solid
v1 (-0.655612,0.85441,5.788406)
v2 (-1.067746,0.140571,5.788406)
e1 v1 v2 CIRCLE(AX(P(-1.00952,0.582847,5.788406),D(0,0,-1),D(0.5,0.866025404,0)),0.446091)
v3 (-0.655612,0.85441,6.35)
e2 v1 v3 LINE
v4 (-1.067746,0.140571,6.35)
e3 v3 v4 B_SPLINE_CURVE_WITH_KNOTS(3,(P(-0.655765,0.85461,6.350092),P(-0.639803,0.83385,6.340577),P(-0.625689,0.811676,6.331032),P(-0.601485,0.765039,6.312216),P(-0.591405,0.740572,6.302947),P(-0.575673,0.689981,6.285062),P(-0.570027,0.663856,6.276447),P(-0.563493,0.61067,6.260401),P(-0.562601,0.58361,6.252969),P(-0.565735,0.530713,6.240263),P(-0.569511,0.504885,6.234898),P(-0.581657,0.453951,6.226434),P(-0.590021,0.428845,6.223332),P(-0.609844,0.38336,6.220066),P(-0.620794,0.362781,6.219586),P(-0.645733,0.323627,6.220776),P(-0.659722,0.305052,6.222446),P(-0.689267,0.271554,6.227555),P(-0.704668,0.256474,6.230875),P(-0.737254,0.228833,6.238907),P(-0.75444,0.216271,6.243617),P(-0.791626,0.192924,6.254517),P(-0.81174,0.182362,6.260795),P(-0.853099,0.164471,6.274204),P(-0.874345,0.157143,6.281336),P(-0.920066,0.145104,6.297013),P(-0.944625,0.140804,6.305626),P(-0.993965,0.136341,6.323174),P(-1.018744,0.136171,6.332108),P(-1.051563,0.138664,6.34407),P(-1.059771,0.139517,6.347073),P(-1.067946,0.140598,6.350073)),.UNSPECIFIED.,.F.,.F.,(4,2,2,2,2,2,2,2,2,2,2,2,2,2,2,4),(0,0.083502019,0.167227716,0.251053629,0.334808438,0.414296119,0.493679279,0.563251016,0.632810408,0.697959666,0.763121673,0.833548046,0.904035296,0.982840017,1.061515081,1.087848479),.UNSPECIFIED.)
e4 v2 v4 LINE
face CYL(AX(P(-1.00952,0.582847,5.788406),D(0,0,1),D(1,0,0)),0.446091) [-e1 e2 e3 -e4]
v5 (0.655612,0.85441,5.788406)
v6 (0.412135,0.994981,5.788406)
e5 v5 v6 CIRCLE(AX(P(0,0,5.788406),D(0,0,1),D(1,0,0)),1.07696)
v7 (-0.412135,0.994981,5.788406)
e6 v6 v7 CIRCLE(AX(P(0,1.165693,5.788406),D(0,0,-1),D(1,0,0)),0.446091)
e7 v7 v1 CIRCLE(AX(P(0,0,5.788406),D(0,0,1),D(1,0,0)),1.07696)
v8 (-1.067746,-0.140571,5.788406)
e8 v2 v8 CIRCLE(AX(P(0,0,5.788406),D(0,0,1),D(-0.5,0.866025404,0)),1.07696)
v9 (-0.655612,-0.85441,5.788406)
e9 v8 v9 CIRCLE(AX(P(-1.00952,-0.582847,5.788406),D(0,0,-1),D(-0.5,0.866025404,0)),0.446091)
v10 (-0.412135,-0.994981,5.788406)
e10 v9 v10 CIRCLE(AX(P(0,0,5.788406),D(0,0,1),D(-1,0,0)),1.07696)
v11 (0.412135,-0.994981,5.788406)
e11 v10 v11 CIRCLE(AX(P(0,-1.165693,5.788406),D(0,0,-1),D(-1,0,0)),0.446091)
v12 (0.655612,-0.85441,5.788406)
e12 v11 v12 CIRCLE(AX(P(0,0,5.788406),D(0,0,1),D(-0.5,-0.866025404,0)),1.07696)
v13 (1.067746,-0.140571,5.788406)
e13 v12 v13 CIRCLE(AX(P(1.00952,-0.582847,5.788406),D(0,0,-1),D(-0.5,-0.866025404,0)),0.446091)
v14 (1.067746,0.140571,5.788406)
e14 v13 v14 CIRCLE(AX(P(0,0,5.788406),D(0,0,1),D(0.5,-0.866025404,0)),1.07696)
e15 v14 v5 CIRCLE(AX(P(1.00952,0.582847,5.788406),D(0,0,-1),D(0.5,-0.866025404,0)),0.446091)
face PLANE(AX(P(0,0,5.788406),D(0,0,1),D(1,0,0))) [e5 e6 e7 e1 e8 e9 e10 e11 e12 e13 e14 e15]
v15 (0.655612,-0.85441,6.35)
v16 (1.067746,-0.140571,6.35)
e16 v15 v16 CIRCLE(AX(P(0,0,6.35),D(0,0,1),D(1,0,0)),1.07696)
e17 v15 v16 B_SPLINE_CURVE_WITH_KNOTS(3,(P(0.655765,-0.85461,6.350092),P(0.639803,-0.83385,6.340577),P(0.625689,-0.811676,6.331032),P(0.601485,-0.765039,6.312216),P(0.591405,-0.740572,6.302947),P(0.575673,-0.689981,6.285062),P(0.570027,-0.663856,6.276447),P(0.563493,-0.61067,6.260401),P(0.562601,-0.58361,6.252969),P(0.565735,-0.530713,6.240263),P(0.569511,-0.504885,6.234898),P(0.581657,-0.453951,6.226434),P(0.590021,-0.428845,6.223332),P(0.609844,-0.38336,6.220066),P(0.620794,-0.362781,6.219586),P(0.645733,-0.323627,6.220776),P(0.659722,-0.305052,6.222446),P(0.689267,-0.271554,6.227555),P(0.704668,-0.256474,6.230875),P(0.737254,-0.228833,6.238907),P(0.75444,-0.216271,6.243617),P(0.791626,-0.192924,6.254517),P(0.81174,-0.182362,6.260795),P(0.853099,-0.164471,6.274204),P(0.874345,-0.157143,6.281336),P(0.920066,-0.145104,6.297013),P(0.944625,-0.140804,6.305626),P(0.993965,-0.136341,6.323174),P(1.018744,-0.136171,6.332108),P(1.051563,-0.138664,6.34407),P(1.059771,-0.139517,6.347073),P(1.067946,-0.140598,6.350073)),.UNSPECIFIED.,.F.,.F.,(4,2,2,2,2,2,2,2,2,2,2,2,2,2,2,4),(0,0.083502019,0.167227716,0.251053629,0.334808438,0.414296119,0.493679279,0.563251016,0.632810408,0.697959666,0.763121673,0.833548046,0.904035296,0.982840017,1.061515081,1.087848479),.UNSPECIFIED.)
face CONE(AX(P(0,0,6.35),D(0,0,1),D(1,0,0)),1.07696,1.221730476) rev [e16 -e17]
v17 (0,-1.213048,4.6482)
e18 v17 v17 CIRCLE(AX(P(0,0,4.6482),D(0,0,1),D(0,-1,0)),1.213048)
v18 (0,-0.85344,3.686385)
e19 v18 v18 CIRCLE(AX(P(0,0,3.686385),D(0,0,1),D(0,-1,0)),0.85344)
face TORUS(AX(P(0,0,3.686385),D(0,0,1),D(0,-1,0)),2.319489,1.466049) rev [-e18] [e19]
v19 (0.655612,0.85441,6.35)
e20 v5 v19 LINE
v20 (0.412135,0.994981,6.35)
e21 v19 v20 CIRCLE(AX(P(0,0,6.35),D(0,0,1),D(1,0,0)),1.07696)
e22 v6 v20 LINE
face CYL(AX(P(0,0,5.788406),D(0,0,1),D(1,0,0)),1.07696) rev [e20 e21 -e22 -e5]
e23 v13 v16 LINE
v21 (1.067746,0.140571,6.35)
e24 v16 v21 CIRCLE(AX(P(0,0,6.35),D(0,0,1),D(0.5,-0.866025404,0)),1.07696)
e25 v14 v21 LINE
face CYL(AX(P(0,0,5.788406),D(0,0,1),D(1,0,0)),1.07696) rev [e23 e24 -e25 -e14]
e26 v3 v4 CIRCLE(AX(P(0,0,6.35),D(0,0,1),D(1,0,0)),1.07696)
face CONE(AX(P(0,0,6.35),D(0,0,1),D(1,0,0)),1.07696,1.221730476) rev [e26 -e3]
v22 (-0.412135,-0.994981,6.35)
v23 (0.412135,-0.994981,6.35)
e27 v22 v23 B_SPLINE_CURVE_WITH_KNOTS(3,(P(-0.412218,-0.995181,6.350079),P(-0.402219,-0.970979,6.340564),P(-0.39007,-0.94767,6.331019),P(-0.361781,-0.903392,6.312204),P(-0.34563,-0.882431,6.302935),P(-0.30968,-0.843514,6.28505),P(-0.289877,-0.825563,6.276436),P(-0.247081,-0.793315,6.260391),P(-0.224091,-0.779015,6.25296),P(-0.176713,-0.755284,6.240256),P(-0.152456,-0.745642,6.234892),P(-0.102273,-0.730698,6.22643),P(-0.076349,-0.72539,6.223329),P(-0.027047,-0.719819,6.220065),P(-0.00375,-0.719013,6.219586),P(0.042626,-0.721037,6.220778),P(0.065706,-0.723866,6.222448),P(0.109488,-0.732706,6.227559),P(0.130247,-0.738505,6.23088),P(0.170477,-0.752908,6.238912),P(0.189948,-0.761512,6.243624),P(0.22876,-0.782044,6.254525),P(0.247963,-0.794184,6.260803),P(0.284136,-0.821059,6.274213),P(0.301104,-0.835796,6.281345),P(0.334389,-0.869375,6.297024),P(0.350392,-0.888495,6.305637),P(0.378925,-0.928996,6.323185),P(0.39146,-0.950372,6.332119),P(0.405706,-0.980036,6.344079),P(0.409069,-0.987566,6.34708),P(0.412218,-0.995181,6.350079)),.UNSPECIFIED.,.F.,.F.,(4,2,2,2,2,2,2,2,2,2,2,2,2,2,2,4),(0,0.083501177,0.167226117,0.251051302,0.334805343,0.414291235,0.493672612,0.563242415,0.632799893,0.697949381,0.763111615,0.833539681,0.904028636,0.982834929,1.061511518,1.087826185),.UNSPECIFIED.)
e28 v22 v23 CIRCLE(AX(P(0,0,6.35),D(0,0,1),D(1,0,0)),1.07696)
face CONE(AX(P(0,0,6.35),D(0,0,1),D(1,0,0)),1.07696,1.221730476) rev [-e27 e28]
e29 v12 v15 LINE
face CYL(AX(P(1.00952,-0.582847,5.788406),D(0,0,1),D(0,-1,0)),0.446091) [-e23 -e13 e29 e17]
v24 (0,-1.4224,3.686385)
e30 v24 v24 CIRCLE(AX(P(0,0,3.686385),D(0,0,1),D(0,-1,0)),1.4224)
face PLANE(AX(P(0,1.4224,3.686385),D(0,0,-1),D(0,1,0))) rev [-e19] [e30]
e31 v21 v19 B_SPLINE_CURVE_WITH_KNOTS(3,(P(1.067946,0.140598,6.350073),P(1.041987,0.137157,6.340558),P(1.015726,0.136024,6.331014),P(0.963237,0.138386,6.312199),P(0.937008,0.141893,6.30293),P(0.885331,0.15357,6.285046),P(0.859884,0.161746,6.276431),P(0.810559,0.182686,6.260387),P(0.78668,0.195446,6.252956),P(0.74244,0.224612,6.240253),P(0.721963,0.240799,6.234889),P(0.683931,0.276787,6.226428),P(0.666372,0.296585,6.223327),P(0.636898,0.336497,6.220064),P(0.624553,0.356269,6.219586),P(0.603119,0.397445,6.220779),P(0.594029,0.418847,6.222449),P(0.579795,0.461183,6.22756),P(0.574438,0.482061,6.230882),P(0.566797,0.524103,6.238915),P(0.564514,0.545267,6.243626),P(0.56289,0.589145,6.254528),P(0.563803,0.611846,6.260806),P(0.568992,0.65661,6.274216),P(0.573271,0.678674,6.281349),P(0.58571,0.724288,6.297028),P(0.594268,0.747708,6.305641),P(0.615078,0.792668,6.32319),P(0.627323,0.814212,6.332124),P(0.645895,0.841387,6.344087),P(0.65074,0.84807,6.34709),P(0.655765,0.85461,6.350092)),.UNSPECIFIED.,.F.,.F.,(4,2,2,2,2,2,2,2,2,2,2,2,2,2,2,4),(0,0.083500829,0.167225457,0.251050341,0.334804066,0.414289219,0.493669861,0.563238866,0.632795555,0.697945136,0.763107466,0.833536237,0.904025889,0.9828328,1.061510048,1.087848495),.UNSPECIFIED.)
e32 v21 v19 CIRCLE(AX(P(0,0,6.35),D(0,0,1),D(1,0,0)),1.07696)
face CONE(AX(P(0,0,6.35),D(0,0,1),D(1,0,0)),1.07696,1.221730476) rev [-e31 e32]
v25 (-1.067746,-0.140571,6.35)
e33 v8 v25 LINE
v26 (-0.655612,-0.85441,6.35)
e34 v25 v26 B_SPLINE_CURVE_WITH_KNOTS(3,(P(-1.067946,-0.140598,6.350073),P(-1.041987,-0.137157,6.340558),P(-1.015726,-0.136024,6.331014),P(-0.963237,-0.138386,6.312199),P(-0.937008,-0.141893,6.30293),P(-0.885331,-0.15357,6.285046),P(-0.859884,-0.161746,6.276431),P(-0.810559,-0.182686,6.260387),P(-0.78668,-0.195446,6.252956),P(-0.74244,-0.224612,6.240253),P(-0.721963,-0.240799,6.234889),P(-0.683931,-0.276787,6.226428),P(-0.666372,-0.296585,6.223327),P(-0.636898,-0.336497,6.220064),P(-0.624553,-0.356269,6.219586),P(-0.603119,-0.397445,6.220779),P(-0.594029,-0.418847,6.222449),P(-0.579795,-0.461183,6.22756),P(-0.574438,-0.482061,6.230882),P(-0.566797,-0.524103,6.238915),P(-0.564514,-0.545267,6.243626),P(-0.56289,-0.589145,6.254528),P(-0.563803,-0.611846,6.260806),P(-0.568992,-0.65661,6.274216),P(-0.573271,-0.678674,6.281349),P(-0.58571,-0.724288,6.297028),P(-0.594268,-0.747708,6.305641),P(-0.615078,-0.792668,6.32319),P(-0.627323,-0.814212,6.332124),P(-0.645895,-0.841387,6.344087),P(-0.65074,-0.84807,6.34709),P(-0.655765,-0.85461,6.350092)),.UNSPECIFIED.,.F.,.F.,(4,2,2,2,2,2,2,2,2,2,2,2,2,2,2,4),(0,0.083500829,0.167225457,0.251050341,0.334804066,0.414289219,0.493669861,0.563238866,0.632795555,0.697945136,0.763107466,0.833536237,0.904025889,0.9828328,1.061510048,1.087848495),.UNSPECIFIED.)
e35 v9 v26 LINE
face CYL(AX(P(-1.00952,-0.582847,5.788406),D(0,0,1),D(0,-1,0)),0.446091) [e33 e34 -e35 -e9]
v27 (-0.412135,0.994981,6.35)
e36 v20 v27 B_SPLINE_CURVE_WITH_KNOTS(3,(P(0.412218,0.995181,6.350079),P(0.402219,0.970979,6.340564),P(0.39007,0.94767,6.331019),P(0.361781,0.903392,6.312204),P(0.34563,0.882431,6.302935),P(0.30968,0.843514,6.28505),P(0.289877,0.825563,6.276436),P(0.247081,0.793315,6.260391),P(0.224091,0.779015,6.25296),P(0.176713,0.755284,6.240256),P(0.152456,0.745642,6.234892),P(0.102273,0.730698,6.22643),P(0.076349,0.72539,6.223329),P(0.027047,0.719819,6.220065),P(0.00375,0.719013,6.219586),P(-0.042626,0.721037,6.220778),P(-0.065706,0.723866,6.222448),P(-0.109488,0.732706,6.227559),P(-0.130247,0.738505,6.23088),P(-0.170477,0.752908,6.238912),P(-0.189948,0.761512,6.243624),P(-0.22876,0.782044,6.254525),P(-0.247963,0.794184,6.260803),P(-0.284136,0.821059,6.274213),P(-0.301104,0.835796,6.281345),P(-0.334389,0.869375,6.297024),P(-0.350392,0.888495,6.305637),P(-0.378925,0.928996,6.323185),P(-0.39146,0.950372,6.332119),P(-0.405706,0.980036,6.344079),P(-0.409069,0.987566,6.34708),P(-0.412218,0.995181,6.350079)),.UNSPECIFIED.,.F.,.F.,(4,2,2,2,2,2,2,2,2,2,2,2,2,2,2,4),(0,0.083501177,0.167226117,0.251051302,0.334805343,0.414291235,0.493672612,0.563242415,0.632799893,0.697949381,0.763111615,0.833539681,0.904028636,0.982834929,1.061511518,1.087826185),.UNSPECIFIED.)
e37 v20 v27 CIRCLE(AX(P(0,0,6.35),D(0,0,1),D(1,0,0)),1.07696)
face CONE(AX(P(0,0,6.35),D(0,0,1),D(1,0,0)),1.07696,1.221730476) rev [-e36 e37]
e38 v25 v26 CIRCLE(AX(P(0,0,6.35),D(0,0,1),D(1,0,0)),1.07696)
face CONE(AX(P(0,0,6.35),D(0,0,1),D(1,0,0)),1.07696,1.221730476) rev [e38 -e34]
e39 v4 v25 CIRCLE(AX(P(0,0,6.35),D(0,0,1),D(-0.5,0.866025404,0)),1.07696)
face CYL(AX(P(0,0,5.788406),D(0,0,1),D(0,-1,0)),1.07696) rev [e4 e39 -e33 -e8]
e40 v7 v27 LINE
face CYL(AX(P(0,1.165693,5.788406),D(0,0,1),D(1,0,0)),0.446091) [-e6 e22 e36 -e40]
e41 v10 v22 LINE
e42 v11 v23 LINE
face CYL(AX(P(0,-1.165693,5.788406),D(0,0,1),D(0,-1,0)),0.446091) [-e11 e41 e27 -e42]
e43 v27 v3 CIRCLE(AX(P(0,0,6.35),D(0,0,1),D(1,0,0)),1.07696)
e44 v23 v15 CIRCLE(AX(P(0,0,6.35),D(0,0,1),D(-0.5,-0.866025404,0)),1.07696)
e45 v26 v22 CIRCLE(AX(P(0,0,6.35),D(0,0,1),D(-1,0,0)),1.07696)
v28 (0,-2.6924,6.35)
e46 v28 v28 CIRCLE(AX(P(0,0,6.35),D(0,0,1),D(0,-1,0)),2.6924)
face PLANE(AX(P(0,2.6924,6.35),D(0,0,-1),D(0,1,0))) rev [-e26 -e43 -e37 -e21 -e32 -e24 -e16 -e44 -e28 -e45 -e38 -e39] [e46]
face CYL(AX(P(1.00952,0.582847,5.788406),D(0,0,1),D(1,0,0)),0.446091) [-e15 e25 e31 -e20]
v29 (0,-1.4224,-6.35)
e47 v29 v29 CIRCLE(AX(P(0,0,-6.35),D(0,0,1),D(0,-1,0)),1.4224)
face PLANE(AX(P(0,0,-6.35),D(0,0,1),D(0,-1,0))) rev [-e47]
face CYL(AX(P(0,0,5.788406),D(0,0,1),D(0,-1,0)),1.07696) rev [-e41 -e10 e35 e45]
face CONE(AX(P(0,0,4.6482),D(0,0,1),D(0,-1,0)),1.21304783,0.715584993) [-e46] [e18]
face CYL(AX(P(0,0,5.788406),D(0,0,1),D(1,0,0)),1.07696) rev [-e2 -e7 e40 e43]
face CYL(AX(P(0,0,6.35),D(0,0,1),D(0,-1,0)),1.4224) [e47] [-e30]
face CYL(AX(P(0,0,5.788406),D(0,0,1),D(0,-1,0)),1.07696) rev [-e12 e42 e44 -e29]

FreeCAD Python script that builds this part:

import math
import FreeCAD as App
import Part
import Sketcher
Q = App.Units.Quantity


def add_polygon(sketch, points):
    """Adds a closed chain of lines whose ends are joined by coincident constraints."""
    first, n = sketch.GeometryCount, len(points)
    for a, b in zip(points, points[1:] + points[:1]):
        sketch.addGeometry(Part.LineSegment(App.Vector(*a, 0), App.Vector(*b, 0)), False)
    for i in range(n):
        sketch.addConstraint(Sketcher.Constraint("Coincident", first + i, 2, first + (i + 1) % n, 1))

doc = App.newDocument("Part")
body = doc.addObject("PartDesign::Body", "Body")

sketch1 = body.newObject("Sketcher::SketchObject", "Sketch")
sketch1.AttachmentSupport = (doc.getObject("YZ_Plane"), [""])
sketch1.MapMode = "FlatFace"
sketch1.addGeometry(Part.LineSegment(App.Vector(1.4, 3.7, 0), App.Vector(0.9, 3.7, 0)), False)
sketch1.addGeometry(Part.ArcOfCircle(Part.Circle(App.Vector(2.3, 3.7, 0), App.Vector(0, 0, 1), 1.5), math.radians(139), math.radians(180)), False)
sketch1.addGeometry(Part.LineSegment(App.Vector(1.2, 4.6, 0), App.Vector(2.7, 6.3, 0)), False)
sketch1.addGeometry(Part.LineSegment(App.Vector(2.7, 6.3, 0), App.Vector(0, 6.3, 0)), False)
sketch1.addGeometry(Part.LineSegment(App.Vector(0, 6.3, 0), App.Vector(0, -6.3, 0)), False)
sketch1.addGeometry(Part.LineSegment(App.Vector(0, -6.3, 0), App.Vector(1.4, -6.3, 0)), False)
sketch1.addGeometry(Part.LineSegment(App.Vector(1.4, -6.3, 0), App.Vector(1.4, 3.7, 0)), False)
sketch1.addConstraint(Sketcher.Constraint("Coincident", 0, 2, 1, 2))
sketch1.addConstraint(Sketcher.Constraint("Tangent", 1, 1, 2, 1))
sketch1.addConstraint(Sketcher.Constraint("Coincident", 2, 2, 3, 1))
sketch1.addConstraint(Sketcher.Constraint("Coincident", 3, 2, 4, 1))
sketch1.addConstraint(Sketcher.Constraint("Coincident", 4, 2, 5, 1))
sketch1.addConstraint(Sketcher.Constraint("Coincident", 5, 2, 6, 1))
sketch1.addConstraint(Sketcher.Constraint("Coincident", 6, 2, 0, 1))
sketch1.addConstraint(Sketcher.Constraint("Horizontal", 0))
sketch1.addConstraint(Sketcher.Constraint("Horizontal", 3))
sketch1.addConstraint(Sketcher.Constraint("Vertical", 4))
sketch1.addConstraint(Sketcher.Constraint("Horizontal", 5))
sketch1.addConstraint(Sketcher.Constraint("Vertical", 6))
sketch1.addConstraint(Sketcher.Constraint("Symmetric", 3, 2, 4, 2, -1, 1))
sketch1.addConstraint(Sketcher.Constraint("Horizontal", 1, 3, 0, 2))
sketch1.addConstraint(Sketcher.Constraint("DistanceY", 4, 2, 4, 1, Q("0.5 in")))
sketch1.addConstraint(Sketcher.Constraint("Angle", 2, Q("49 deg")))
sketch1.addConstraint(Sketcher.Constraint("DistanceX", 3, 2, 3, 1, Q("0.106 in")))
sketch1.addConstraint(Sketcher.Constraint("DistanceX", 5, 1, 5, 2, Q("0.056 in")))
sketch1.addConstraint(Sketcher.Constraint("DistanceX", 0, 2, 0, 1, Q("0.0224 in")))
sketch1.addConstraint(Sketcher.Constraint("DistanceY", -1, 1, 1, 1, Q("0.183 in")))
revolution = body.newObject("PartDesign::Revolution", "Revolution")
revolution.Profile = sketch1
revolution.ReferenceAxis = (sketch1, ["V_Axis"])
revolution.Angle = 360

sketch2 = body.newObject("Sketcher::SketchObject", "Sketch001")
sketch2.AttachmentSupport = (doc.getObject("XY_Plane"), [""])
sketch2.MapMode = "FlatFace"
sketch2.AttachmentOffset = App.Placement(App.Vector(0, 0, 0.25 * 25.4), App.Rotation())
sketch2.addGeometry(Part.LineSegment(App.Vector(-0.54, 0.93, 0), App.Vector(0, 0, 0)), False)
sketch2.addGeometry(Part.LineSegment(App.Vector(0, 0, 0), App.Vector(0.54, 0.93, 0)), False)
sketch2.addGeometry(Part.ArcOfCircle(Part.Circle(App.Vector(0, 0, 0), App.Vector(0, 0, 1), 1.08), math.radians(60), math.radians(67.5)), False)
sketch2.addGeometry(Part.ArcOfCircle(Part.Circle(App.Vector(0, 1.17, 0), App.Vector(0, 0, 1), 0.45), math.radians(-157), math.radians(-23)), False)
sketch2.addGeometry(Part.ArcOfCircle(Part.Circle(App.Vector(0, 0, 0), App.Vector(0, 0, 1), 1.08), math.radians(112.5), math.radians(120)), False)
sketch2.addConstraint(Sketcher.Constraint("Coincident", 0, 2, 1, 1))
sketch2.addConstraint(Sketcher.Constraint("Coincident", 1, 2, 2, 1))
sketch2.addConstraint(Sketcher.Constraint("Coincident", 2, 2, 3, 2))
sketch2.addConstraint(Sketcher.Constraint("Coincident", 3, 1, 4, 1))
sketch2.addConstraint(Sketcher.Constraint("Coincident", 4, 2, 0, 1))
sketch2.addConstraint(Sketcher.Constraint("Coincident", 2, 3, -1, 1))
sketch2.addConstraint(Sketcher.Constraint("Coincident", 4, 3, -1, 1))
sketch2.addConstraint(Sketcher.Constraint("Coincident", 0, 2, -1, 1))
sketch2.addConstraint(Sketcher.Constraint("Equal", 2, 4))
sketch2.addConstraint(Sketcher.Constraint("PointOnObject", 3, 3, -2))
sketch2.addConstraint(Sketcher.Constraint("Horizontal", 1, 2, 4, 2))
sketch2.addConstraint(Sketcher.Constraint("Angle", 0, Q("-60 deg")))
sketch2.addConstraint(Sketcher.Constraint("Radius", 2, Q("0.0424 in")))
sketch2.addConstraint(Sketcher.Constraint("Radius", 3, 0.446091))
sketch2.addConstraint(Sketcher.Constraint("DistanceY", -1, 1, 2, 2, 0.994981))
pocket1 = body.newObject("PartDesign::Pocket", "Pocket")
pocket1.Profile = sketch2
pocket1.Length = 0.561594
doc.recompute()

polarpattern = body.newObject("PartDesign::PolarPattern", "PolarPattern")
polarpattern.Originals = [pocket1]
polarpattern.Axis = (doc.getObject("Z_Axis"), [""])
polarpattern.Angle = 360
polarpattern.Occurrences = 6
body.Tip = polarpattern

sketch3 = body.newObject("Sketcher::SketchObject", "Sketch002")
sketch3.AttachmentSupport = (doc.getObject("YZ_Plane"), [""])
sketch3.MapMode = "FlatFace"
add_polygon(sketch3, [(0, 6.35), (-1.08, 6.35), (0, 5.96)])
sketch3.addConstraint(Sketcher.Constraint("Horizontal", 0))
sketch3.addConstraint(Sketcher.Constraint("Vertical", 2))
sketch3.addConstraint(Sketcher.Constraint("PointOnObject", 1, 2, -2))
sketch3.addConstraint(Sketcher.Constraint("Angle", 1, Q("-20 deg")))
sketch3.addConstraint(Sketcher.Constraint("DistanceY", -1, 1, 0, 2, Q("0.25 in")))
sketch3.addConstraint(Sketcher.Constraint("DistanceX", 0, 2, 0, 1, Q("0.0424 in")))
groove = body.newObject("PartDesign::Groove", "Groove")
groove.Profile = sketch3
groove.ReferenceAxis = (sketch3, ["V_Axis"])
groove.Angle = 360

doc.recompute()
